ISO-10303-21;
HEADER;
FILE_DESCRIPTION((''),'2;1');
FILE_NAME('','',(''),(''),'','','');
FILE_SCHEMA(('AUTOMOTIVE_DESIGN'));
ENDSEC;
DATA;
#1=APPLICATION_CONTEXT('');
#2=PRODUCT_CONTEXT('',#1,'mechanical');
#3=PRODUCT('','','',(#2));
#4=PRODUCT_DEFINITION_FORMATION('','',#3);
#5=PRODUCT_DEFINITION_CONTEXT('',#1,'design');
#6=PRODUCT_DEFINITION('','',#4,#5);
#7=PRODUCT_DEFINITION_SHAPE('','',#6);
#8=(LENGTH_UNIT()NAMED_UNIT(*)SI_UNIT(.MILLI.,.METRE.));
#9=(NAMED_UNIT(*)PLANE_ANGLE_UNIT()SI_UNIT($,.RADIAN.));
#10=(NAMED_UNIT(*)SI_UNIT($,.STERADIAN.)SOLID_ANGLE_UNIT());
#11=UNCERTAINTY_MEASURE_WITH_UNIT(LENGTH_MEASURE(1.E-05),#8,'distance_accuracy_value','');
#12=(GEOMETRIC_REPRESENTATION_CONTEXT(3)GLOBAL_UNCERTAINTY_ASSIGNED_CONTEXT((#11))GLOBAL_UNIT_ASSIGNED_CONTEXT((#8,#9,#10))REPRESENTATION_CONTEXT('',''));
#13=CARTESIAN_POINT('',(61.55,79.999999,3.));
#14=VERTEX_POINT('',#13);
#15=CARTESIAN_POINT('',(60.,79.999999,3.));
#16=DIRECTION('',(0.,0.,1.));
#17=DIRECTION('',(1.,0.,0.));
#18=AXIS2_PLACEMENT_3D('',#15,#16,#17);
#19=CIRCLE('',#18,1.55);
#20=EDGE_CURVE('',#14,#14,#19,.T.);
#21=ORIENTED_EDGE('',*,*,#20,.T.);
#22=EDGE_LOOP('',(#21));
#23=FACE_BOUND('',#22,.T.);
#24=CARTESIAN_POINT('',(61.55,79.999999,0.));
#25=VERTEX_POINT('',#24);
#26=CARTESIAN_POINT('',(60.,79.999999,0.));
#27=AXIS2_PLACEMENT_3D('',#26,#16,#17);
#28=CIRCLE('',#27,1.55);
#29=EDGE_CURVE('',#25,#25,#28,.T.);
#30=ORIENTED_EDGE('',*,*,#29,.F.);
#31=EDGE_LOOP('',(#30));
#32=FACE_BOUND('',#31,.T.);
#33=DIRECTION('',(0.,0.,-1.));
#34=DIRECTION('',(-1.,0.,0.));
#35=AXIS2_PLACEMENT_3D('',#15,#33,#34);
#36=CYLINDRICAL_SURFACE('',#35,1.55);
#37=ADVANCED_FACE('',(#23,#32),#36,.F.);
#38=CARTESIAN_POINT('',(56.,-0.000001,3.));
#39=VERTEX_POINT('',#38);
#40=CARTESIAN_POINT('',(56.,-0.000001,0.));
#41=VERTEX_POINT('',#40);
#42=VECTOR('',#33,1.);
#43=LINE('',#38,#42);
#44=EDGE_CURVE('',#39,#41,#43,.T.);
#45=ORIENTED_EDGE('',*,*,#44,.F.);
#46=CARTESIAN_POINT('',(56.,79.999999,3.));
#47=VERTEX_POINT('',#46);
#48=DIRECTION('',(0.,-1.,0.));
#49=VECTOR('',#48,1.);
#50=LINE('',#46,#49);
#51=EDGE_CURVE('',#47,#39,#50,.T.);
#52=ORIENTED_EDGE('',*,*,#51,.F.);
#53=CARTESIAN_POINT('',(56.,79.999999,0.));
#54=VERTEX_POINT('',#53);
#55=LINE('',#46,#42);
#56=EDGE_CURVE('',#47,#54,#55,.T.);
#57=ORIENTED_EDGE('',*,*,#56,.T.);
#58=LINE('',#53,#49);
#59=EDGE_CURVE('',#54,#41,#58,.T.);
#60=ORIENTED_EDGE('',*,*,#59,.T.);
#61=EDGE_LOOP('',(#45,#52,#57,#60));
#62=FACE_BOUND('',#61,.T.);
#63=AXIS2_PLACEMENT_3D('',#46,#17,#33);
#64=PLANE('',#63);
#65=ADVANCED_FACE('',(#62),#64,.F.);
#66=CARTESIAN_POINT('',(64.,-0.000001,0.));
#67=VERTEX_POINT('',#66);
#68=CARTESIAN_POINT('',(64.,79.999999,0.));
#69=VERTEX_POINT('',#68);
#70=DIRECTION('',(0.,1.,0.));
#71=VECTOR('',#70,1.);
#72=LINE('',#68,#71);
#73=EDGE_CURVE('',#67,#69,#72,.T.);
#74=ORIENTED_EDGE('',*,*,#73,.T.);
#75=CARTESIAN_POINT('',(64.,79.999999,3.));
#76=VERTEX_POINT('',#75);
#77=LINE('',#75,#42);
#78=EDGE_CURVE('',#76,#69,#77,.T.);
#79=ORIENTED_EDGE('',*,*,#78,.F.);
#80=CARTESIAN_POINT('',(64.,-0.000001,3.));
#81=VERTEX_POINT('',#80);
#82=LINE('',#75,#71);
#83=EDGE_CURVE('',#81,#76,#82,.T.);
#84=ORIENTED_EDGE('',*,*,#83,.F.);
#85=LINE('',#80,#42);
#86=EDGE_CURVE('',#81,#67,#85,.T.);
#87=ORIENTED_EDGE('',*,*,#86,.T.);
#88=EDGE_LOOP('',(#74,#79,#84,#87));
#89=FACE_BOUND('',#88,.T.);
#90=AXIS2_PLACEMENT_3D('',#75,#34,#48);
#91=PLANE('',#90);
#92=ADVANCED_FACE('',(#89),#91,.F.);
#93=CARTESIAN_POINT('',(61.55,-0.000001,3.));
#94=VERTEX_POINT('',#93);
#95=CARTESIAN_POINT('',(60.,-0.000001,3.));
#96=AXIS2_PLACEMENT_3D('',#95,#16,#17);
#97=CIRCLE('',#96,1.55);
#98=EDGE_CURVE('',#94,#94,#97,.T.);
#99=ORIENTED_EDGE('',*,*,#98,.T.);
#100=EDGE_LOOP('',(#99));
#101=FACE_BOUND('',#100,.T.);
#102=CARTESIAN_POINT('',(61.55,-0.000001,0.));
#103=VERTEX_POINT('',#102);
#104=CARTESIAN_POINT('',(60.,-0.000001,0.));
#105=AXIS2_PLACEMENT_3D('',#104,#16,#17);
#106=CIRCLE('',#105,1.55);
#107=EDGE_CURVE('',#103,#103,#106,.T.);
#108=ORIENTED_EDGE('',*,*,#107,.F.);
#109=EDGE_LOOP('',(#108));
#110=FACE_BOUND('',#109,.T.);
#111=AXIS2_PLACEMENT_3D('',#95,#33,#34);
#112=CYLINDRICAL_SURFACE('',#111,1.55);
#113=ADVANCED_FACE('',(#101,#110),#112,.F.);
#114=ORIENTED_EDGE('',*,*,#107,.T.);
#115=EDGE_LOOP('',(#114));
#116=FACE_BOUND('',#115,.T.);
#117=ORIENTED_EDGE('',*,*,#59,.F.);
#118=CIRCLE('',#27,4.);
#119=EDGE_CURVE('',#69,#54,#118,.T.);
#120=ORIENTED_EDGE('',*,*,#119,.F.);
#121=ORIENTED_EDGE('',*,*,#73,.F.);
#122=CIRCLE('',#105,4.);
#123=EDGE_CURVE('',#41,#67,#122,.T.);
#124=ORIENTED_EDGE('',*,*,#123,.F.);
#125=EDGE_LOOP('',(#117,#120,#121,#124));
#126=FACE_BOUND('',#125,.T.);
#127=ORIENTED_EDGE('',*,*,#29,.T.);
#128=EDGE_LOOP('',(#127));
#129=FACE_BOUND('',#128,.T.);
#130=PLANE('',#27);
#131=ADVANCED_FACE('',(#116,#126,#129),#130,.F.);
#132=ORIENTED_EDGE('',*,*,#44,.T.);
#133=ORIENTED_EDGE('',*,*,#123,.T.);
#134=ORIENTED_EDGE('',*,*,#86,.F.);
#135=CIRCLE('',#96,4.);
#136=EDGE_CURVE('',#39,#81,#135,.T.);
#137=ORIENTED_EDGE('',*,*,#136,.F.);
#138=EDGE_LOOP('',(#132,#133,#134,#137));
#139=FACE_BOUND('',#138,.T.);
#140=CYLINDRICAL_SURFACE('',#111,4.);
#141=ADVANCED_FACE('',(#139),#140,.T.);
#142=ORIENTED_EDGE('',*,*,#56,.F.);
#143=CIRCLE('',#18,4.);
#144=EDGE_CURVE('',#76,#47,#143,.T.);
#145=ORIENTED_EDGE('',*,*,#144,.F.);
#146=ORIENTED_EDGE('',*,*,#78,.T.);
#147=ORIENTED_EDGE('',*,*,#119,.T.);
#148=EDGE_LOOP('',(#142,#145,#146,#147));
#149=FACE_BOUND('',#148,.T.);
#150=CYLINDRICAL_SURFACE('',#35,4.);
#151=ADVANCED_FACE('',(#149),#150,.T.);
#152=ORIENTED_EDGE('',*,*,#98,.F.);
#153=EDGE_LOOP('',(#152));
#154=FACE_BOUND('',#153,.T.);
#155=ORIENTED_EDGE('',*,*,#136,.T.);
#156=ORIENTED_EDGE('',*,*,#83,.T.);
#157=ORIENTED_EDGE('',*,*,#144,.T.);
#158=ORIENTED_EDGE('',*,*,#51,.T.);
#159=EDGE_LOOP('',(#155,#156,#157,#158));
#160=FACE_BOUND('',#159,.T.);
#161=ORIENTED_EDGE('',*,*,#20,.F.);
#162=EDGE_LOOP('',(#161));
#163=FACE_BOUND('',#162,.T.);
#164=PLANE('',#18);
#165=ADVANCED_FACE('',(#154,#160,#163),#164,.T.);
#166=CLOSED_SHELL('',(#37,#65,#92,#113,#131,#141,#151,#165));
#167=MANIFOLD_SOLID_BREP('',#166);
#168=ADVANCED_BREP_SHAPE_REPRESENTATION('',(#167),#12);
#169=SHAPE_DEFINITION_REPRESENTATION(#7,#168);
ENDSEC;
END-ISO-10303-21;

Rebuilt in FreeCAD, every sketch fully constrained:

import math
import FreeCAD as App
import Part
import Sketcher

V = App.Vector

doc = App.newDocument("Part")
body = doc.addObject("PartDesign::Body", "Body")

sketch1 = doc.addObject("Sketcher::SketchObject", "Sketch")
body.addObject(sketch1)
sketch1.AttachmentSupport = (doc.XY_Plane, [""])
sketch1.MapMode = "FlatFace"
sketch1.addGeometry([
    Part.LineSegment(V(56, 79.999999, 0), V(56, -0.000001, 0)),
    Part.ArcOfCircle(Part.Circle(V(60, -0.000001, 0), V(0, 0, 1), 4), math.radians(180), math.radians(360)),
    Part.LineSegment(V(64, -0.000001, 0), V(64, 79.999999, 0)),
    Part.ArcOfCircle(Part.Circle(V(60, 79.999999, 0), V(0, 0, 1), 4), math.radians(0), math.radians(180)),
    Part.Circle(V(60, -0.000001, 0), V(0, 0, 1), 1.55),
    Part.Circle(V(60, 79.999999, 0), V(0, 0, 1), 1.55),
], False)
sketch1.addConstraint([
    Sketcher.Constraint("Tangent", 0, 2, 1, 1),
    Sketcher.Constraint("Tangent", 1, 2, 2, 1),
    Sketcher.Constraint("Tangent", 2, 2, 3, 1),
    Sketcher.Constraint("Tangent", 3, 2, 0, 1),
    Sketcher.Constraint("Vertical", 0),
    Sketcher.Constraint("Vertical", 2),
    Sketcher.Constraint("Coincident", 4, 3, 1, 3),
    Sketcher.Constraint("Coincident", 5, 3, 3, 3),
    Sketcher.Constraint("Equal", 4, 5),
    Sketcher.Constraint("PointOnObject", 1, 3, -1),
    Sketcher.Constraint("Radius", 1, 4.0),
    Sketcher.Constraint("Diameter", 4, 3.1),
    Sketcher.Constraint("DistanceY", 0, 2, 0, 1, 80.0),
    Sketcher.Constraint("DistanceX", -1, 1, 1, 3, 60.0),
])
pad1 = doc.addObject("PartDesign::Pad", "Pad")
body.addObject(pad1)
pad1.Profile = sketch1
pad1.Length = 3

doc.recompute()
